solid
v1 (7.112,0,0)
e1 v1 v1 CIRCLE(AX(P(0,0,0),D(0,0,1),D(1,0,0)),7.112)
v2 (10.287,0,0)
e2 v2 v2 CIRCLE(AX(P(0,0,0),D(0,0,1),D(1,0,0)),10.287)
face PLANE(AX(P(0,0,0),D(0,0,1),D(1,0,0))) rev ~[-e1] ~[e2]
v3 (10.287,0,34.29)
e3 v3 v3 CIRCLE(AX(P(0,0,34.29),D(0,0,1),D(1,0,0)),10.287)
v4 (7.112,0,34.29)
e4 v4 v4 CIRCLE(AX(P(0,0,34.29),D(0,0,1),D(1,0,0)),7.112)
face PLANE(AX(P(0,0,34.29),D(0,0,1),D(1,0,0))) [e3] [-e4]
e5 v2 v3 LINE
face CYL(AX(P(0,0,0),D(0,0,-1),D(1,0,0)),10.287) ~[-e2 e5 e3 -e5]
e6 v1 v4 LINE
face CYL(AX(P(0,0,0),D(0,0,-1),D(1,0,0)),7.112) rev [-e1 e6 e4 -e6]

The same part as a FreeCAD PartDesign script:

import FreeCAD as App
import Part
import Sketcher
from FreeCAD import Vector
Q = App.Units.Quantity

doc = App.newDocument("Part")
body = doc.addObject("PartDesign::Body", "Body")

# Sketch on XY plane
sketch1 = body.newObject("Sketcher::SketchObject", "Sketch")
sketch1.AttachmentSupport = (doc.getObject("XY_Plane"), [""])
sketch1.MapMode = "FlatFace"
sketch1.addGeometry([
    Part.Circle(Vector(0, 0, 0), Vector(0, 0, 1), 10),
    Part.Circle(Vector(0, 0, 0), Vector(0, 0, 1), 7),
], False)
sketch1.addConstraint([
    Sketcher.Constraint("Coincident", 0, 3, -1, 1),
    Sketcher.Constraint("Coincident", 1, 3, -1, 1),
    Sketcher.Constraint("Diameter", 1, Q("0.56 in")),
    Sketcher.Constraint("Diameter", 0, Q("0.81 in")),
])
pad1 = body.newObject("PartDesign::Pad", "Pad")
pad1.Profile = sketch1
pad1.Length = Q("1.35 in")

doc.recompute()
